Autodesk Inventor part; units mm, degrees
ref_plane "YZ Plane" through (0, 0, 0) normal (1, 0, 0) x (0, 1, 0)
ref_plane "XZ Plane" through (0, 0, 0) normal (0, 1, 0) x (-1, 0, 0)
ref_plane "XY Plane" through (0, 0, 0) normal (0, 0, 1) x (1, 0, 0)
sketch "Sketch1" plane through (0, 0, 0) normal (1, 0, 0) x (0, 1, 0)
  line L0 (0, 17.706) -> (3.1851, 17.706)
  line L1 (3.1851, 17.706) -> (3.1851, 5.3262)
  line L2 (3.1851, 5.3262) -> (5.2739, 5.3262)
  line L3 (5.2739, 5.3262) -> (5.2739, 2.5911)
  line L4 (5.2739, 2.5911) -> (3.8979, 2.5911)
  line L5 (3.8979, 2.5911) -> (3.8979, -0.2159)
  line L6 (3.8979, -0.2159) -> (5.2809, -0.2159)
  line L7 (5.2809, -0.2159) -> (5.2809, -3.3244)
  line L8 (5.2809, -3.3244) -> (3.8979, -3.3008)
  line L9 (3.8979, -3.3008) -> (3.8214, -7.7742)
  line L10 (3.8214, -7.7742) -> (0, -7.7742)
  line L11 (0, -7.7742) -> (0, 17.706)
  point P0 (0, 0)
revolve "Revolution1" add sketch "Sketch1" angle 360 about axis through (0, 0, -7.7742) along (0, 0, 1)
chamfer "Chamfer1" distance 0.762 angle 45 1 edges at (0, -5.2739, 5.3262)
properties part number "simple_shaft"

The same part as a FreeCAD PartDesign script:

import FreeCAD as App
import Part
import Sketcher
Q = App.Units.Quantity


def edges_at(feature, points):
    """Names of the edges that pass closest to the given points."""
    edges = feature.Shape.Edges
    near = lambda p: min(range(len(edges)), key=lambda i: edges[i].distToShape(Part.Vertex(*p))[0])
    return sorted({f"Edge{near(p) + 1}" for p in points})

doc = App.newDocument("Part")
params = doc.addObject("Spreadsheet::Sheet", "Params")
for row, (alias, value) in enumerate([
    ("revolution_angle", "360 deg"),
    ("chamfer_size", "0.03 in"),
], start=1):
    params.set(f"A{row}", alias)
    params.set(f"B{row}", "=" + value)
    params.setAlias(f"B{row}", alias)

body = doc.addObject("PartDesign::Body", "Body")

# Sketch on YZ plane
sketch1 = body.newObject("Sketcher::SketchObject", "Sketch")
sketch1.AttachmentSupport = (doc.getObject("YZ_Plane"), [""])
sketch1.MapMode = "FlatFace"
sketch1.addGeometry(Part.LineSegment(App.Vector(3.1851, 17.706, 0), App.Vector(0, 17.706, 0)), False)
sketch1.addGeometry(Part.LineSegment(App.Vector(0, 17.706, 0), App.Vector(0, -7.7742, 0)), False)
sketch1.addGeometry(Part.LineSegment(App.Vector(0, -7.7742, 0), App.Vector(3.8214, -7.7742, 0)), False)
sketch1.addGeometry(Part.LineSegment(App.Vector(3.8214, -7.7742, 0), App.Vector(3.8979, -3.3008, 0)), False)
sketch1.addGeometry(Part.LineSegment(App.Vector(3.8979, -3.3008, 0), App.Vector(5.2809, -3.3244, 0)), False)
sketch1.addGeometry(Part.LineSegment(App.Vector(5.2809, -3.3244, 0), App.Vector(5.2809, -0.2159, 0)), False)
sketch1.addGeometry(Part.LineSegment(App.Vector(5.2809, -0.2159, 0), App.Vector(3.8979, -0.2159, 0)), False)
sketch1.addGeometry(Part.LineSegment(App.Vector(3.8979, -0.2159, 0), App.Vector(3.8979, 2.5911, 0)), False)
sketch1.addGeometry(Part.LineSegment(App.Vector(3.8979, 2.5911, 0), App.Vector(5.2739, 2.5911, 0)), False)
sketch1.addGeometry(Part.LineSegment(App.Vector(5.2739, 2.5911, 0), App.Vector(5.2739, 5.3262, 0)), False)
sketch1.addGeometry(Part.LineSegment(App.Vector(5.2739, 5.3262, 0), App.Vector(3.1851, 5.3262, 0)), False)
sketch1.addGeometry(Part.LineSegment(App.Vector(3.1851, 5.3262, 0), App.Vector(3.1851, 17.706, 0)), False)
sketch1.addConstraint(Sketcher.Constraint("Coincident", 0, 2, 1, 1))
sketch1.addConstraint(Sketcher.Constraint("Coincident", 1, 2, 2, 1))
sketch1.addConstraint(Sketcher.Constraint("Coincident", 2, 2, 3, 1))
sketch1.addConstraint(Sketcher.Constraint("Coincident", 3, 2, 4, 1))
sketch1.addConstraint(Sketcher.Constraint("Coincident", 4, 2, 5, 1))
sketch1.addConstraint(Sketcher.Constraint("Coincident", 5, 2, 6, 1))
sketch1.addConstraint(Sketcher.Constraint("Coincident", 6, 2, 7, 1))
sketch1.addConstraint(Sketcher.Constraint("Coincident", 7, 2, 8, 1))
sketch1.addConstraint(Sketcher.Constraint("Coincident", 8, 2, 9, 1))
sketch1.addConstraint(Sketcher.Constraint("Coincident", 9, 2, 10, 1))
sketch1.addConstraint(Sketcher.Constraint("Coincident", 10, 2, 11, 1))
sketch1.addConstraint(Sketcher.Constraint("Coincident", 11, 2, 0, 1))
sketch1.addConstraint(Sketcher.Constraint("Horizontal", 0))
sketch1.addConstraint(Sketcher.Constraint("Vertical", 1))
sketch1.addConstraint(Sketcher.Constraint("Horizontal", 2))
sketch1.addConstraint(Sketcher.Constraint("Vertical", 5))
sketch1.addConstraint(Sketcher.Constraint("Horizontal", 6))
sketch1.addConstraint(Sketcher.Constraint("Vertical", 7))
sketch1.addConstraint(Sketcher.Constraint("Horizontal", 8))
sketch1.addConstraint(Sketcher.Constraint("Vertical", 9))
sketch1.addConstraint(Sketcher.Constraint("Horizontal", 10))
sketch1.addConstraint(Sketcher.Constraint("Vertical", 11))
sketch1.addConstraint(Sketcher.Constraint("PointOnObject", 0, 2, -2))
sketch1.addConstraint(Sketcher.Constraint("DistanceX", 0, 2, 0, 1, Q("0.1254 in")))
sketch1.addConstraint(Sketcher.Constraint("DistanceY", 7, 1, 7, 2, Q("0.1105 in")))
sketch1.addConstraint(Sketcher.Constraint("DistanceY", 11, 1, 11, 2, Q("0.4874 in")))
sketch1.addConstraint(Sketcher.Constraint("DistanceY", -1, 1, 7, 2, Q("0.102 in")))
sketch1.addConstraint(Sketcher.Constraint("DistanceX", 2, 2, 3, 2, Q("0.003 in")))
sketch1.addConstraint(Sketcher.Constraint("DistanceX", 2, 2, 6, 2, Q("0.003 in")))
sketch1.addConstraint(Sketcher.Constraint("DistanceX", 2, 1, 2, 2, Q("3.8214 mm")))
sketch1.addConstraint(Sketcher.Constraint("DistanceX", 6, 2, 6, 1, Q("1.383 mm")))
sketch1.addConstraint(Sketcher.Constraint("DistanceX", 8, 1, 8, 2, Q("1.376 mm")))
sketch1.addConstraint(Sketcher.Constraint("DistanceY", 1, 2, 1, 1, Q("25.4802 mm")))
sketch1.addConstraint(Sketcher.Constraint("DistanceY", 5, 1, 5, 2, Q("3.1085 mm")))
sketch1.addConstraint(Sketcher.Constraint("DistanceY", 9, 1, 9, 2, Q("2.735 mm")))
sketch1.addConstraint(Sketcher.Constraint("Distance", 3, Q("4.474 mm")))
revolution = body.newObject("PartDesign::Revolution", "Revolution")
revolution.Profile = sketch1
revolution.ReferenceAxis = (sketch1, ["V_Axis"])
revolution.setExpression("Angle", "Params.revolution_angle")
doc.recompute()

chamfer = body.newObject("PartDesign::Chamfer", "Chamfer")
chamfer.Base = (revolution, edges_at(revolution, [(0, -5.274, 5.326)]))
chamfer.setExpression("Size", "Params.chamfer_size")

doc.recompute()
